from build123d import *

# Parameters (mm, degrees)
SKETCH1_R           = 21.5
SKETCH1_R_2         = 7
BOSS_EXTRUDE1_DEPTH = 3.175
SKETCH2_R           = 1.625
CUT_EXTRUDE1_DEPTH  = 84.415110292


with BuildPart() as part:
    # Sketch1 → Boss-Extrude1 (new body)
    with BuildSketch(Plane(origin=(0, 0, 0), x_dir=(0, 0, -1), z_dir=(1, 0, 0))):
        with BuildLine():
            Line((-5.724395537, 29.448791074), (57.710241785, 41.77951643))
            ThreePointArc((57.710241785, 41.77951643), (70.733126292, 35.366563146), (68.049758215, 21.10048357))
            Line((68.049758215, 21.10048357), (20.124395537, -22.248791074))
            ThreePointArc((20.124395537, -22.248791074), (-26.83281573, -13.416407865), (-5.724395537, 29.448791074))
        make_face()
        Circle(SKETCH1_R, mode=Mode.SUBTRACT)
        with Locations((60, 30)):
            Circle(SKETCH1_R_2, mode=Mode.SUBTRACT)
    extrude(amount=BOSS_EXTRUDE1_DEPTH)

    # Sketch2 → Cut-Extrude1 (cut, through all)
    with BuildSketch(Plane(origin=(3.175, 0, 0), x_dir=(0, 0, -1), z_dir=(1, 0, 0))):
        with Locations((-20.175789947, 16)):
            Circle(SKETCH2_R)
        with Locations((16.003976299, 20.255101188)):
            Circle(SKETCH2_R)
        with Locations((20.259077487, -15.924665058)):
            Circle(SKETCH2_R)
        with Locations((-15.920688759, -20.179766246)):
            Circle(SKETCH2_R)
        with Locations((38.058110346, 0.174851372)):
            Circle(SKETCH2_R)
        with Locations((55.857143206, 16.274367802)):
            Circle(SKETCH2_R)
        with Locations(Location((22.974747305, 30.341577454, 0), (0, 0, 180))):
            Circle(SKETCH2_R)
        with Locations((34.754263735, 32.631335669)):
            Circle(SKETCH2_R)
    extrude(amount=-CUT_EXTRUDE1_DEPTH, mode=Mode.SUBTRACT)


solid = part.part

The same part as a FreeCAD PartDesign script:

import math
import FreeCAD as App
import Part
import Sketcher

doc = App.newDocument("Part")
body = doc.addObject("PartDesign::Body", "Body")

# Sketch on YZ plane
sketch1 = body.newObject("Sketcher::SketchObject", "Sketch")
sketch1.AttachmentSupport = (doc.getObject("YZ_Plane"), [""])
sketch1.MapMode = "FlatFace"
sketch1.addGeometry(Part.LineSegment(App.Vector(42, -58, 0), App.Vector(29, 6, 0)), False)
sketch1.addGeometry(Part.ArcOfCircle(Part.Circle(App.Vector(0, 0, 0), App.Vector(0, 0, 1), 30), math.radians(11), math.radians(222)), False)
sketch1.addGeometry(Part.LineSegment(App.Vector(-22, -20, 0), App.Vector(21, -68, 0)), False)
sketch1.addGeometry(Part.ArcOfCircle(Part.Circle(App.Vector(30, -60, 0), App.Vector(0, 0, 1), 12), math.radians(-138), math.radians(11)), False)
sketch1.addGeometry(Part.Circle(App.Vector(0, 0, 0), App.Vector(0, 0, 1), 22), False)
sketch1.addGeometry(Part.Circle(App.Vector(30, -60, 0), App.Vector(0, 0, 1), 7), False)
sketch1.addConstraint(Sketcher.Constraint("Tangent", 0, 2, 1, 1))
sketch1.addConstraint(Sketcher.Constraint("Tangent", 1, 2, 2, 1))
sketch1.addConstraint(Sketcher.Constraint("Tangent", 2, 2, 3, 1))
sketch1.addConstraint(Sketcher.Constraint("Tangent", 3, 2, 0, 1))
sketch1.addConstraint(Sketcher.Constraint("Coincident", 1, 3, -1, 1))
sketch1.addConstraint(Sketcher.Constraint("Coincident", 4, 3, -1, 1))
sketch1.addConstraint(Sketcher.Constraint("Coincident", 5, 3, 3, 3))
sketch1.addConstraint(Sketcher.Constraint("Diameter", 4, 43.0))
sketch1.addConstraint(Sketcher.Constraint("Diameter", 5, 14.0))
sketch1.addConstraint(Sketcher.Constraint("Radius", 1, 30.0))
sketch1.addConstraint(Sketcher.Constraint("Radius", 3, 12.0))
sketch1.addConstraint(Sketcher.Constraint("DistanceX", -1, 1, 3, 3, 30.0))
sketch1.addConstraint(Sketcher.Constraint("DistanceY", 3, 3, -1, 1, 60.0))
pad1 = body.newObject("PartDesign::Pad", "Pad")
pad1.Profile = sketch1
pad1.Length = 3.175

# Sketch on YZ plane
sketch2 = body.newObject("Sketcher::SketchObject", "Sketch001")
sketch2.AttachmentSupport = (doc.getObject("YZ_Plane"), [""])
sketch2.MapMode = "FlatFace"
sketch2.AttachmentOffset = App.Placement(App.Vector(0, 0, 3.175), App.Rotation())
sketch2.addGeometry(Part.Circle(App.Vector(16, 20.2, 0), App.Vector(0, 0, 1), 1.6), False)
sketch2.addGeometry(Part.Circle(App.Vector(20.3, -16, 0), App.Vector(0, 0, 1), 1.6), False)
sketch2.addGeometry(Part.Circle(App.Vector(-15.9, -20.3, 0), App.Vector(0, 0, 1), 1.6), False)
sketch2.addGeometry(Part.Circle(App.Vector(-20.2, 15.9, 0), App.Vector(0, 0, 1), 1.6), False)
sketch2.addGeometry(Part.Circle(App.Vector(0.2, -38.1, 0), App.Vector(0, 0, 1), 1.6), False)
sketch2.addGeometry(Part.Circle(App.Vector(16.3, -55.9, 0), App.Vector(0, 0, 1), 1.6), False)
sketch2.addGeometry(Part.Circle(App.Vector(30.3, -23, 0), App.Vector(0, 0, 1), 1.6), False)
sketch2.addGeometry(Part.Circle(App.Vector(32.6, -34.8, 0), App.Vector(0, 0, 1), 1.6), False)
sketch2.addConstraint(Sketcher.Constraint("Equal", 0, 1))
sketch2.addConstraint(Sketcher.Constraint("Equal", 1, 2))
sketch2.addConstraint(Sketcher.Constraint("Equal", 2, 3))
sketch2.addConstraint(Sketcher.Constraint("Equal", 3, 4))
sketch2.addConstraint(Sketcher.Constraint("Equal", 4, 5))
sketch2.addConstraint(Sketcher.Constraint("Equal", 5, 6))
sketch2.addConstraint(Sketcher.Constraint("Equal", 6, 7))
sketch2.addConstraint(Sketcher.Constraint("Diameter", 0, 3.25))
sketch2.addConstraint(Sketcher.Constraint("DistanceX", -1, 1, 0, 3, 16.0))
sketch2.addConstraint(Sketcher.Constraint("DistanceX", 2, 3, 7, 3, 48.556001))
sketch2.addConstraint(Sketcher.Constraint("DistanceX", -1, 1, 1, 3, 20.255101))
sketch2.addConstraint(Sketcher.Constraint("DistanceY", 2, 3, 1, 3, 4.255101))
sketch2.addConstraint(Sketcher.Constraint("DistanceY", 3, 3, 0, 3, 4.255101))
sketch2.addConstraint(Sketcher.Constraint("DistanceX", 3, 3, 2, 3, 4.255101))
sketch2.addConstraint(Sketcher.Constraint("DistanceY", 4, 3, 3, 3, 53.978799))
sketch2.addConstraint(Sketcher.Constraint("DistanceY", -1, 1, 0, 3, 20.17579))
sketch2.addConstraint(Sketcher.Constraint("DistanceX", -1, 1, 4, 3, 0.174851))
sketch2.addConstraint(Sketcher.Constraint("DistanceY", 5, 3, 3, 3, 71.777832))
sketch2.addConstraint(Sketcher.Constraint("DistanceY", 6, 3, 1, 3, 6.970771))
sketch2.addConstraint(Sketcher.Constraint("DistanceX", 5, 3, 6, 3, 14.06721))
sketch2.addConstraint(Sketcher.Constraint("DistanceX", 6, 3, 7, 3, 2.289758))
sketch2.addConstraint(Sketcher.Constraint("DistanceY", 5, 3, 7, 3, 21.102879))
sketch2.addConstraint(Sketcher.Constraint("DistanceY", 1, 3, -1, 1, 16.003976))
sketch2.addConstraint(Sketcher.Constraint("DistanceX", 2, 3, -1, 1, 15.924665))
pocket1 = body.newObject("PartDesign::Pocket", "Pocket")
pocket1.Profile = sketch2
pocket1.Type = "ThroughAll"

doc.recompute()
